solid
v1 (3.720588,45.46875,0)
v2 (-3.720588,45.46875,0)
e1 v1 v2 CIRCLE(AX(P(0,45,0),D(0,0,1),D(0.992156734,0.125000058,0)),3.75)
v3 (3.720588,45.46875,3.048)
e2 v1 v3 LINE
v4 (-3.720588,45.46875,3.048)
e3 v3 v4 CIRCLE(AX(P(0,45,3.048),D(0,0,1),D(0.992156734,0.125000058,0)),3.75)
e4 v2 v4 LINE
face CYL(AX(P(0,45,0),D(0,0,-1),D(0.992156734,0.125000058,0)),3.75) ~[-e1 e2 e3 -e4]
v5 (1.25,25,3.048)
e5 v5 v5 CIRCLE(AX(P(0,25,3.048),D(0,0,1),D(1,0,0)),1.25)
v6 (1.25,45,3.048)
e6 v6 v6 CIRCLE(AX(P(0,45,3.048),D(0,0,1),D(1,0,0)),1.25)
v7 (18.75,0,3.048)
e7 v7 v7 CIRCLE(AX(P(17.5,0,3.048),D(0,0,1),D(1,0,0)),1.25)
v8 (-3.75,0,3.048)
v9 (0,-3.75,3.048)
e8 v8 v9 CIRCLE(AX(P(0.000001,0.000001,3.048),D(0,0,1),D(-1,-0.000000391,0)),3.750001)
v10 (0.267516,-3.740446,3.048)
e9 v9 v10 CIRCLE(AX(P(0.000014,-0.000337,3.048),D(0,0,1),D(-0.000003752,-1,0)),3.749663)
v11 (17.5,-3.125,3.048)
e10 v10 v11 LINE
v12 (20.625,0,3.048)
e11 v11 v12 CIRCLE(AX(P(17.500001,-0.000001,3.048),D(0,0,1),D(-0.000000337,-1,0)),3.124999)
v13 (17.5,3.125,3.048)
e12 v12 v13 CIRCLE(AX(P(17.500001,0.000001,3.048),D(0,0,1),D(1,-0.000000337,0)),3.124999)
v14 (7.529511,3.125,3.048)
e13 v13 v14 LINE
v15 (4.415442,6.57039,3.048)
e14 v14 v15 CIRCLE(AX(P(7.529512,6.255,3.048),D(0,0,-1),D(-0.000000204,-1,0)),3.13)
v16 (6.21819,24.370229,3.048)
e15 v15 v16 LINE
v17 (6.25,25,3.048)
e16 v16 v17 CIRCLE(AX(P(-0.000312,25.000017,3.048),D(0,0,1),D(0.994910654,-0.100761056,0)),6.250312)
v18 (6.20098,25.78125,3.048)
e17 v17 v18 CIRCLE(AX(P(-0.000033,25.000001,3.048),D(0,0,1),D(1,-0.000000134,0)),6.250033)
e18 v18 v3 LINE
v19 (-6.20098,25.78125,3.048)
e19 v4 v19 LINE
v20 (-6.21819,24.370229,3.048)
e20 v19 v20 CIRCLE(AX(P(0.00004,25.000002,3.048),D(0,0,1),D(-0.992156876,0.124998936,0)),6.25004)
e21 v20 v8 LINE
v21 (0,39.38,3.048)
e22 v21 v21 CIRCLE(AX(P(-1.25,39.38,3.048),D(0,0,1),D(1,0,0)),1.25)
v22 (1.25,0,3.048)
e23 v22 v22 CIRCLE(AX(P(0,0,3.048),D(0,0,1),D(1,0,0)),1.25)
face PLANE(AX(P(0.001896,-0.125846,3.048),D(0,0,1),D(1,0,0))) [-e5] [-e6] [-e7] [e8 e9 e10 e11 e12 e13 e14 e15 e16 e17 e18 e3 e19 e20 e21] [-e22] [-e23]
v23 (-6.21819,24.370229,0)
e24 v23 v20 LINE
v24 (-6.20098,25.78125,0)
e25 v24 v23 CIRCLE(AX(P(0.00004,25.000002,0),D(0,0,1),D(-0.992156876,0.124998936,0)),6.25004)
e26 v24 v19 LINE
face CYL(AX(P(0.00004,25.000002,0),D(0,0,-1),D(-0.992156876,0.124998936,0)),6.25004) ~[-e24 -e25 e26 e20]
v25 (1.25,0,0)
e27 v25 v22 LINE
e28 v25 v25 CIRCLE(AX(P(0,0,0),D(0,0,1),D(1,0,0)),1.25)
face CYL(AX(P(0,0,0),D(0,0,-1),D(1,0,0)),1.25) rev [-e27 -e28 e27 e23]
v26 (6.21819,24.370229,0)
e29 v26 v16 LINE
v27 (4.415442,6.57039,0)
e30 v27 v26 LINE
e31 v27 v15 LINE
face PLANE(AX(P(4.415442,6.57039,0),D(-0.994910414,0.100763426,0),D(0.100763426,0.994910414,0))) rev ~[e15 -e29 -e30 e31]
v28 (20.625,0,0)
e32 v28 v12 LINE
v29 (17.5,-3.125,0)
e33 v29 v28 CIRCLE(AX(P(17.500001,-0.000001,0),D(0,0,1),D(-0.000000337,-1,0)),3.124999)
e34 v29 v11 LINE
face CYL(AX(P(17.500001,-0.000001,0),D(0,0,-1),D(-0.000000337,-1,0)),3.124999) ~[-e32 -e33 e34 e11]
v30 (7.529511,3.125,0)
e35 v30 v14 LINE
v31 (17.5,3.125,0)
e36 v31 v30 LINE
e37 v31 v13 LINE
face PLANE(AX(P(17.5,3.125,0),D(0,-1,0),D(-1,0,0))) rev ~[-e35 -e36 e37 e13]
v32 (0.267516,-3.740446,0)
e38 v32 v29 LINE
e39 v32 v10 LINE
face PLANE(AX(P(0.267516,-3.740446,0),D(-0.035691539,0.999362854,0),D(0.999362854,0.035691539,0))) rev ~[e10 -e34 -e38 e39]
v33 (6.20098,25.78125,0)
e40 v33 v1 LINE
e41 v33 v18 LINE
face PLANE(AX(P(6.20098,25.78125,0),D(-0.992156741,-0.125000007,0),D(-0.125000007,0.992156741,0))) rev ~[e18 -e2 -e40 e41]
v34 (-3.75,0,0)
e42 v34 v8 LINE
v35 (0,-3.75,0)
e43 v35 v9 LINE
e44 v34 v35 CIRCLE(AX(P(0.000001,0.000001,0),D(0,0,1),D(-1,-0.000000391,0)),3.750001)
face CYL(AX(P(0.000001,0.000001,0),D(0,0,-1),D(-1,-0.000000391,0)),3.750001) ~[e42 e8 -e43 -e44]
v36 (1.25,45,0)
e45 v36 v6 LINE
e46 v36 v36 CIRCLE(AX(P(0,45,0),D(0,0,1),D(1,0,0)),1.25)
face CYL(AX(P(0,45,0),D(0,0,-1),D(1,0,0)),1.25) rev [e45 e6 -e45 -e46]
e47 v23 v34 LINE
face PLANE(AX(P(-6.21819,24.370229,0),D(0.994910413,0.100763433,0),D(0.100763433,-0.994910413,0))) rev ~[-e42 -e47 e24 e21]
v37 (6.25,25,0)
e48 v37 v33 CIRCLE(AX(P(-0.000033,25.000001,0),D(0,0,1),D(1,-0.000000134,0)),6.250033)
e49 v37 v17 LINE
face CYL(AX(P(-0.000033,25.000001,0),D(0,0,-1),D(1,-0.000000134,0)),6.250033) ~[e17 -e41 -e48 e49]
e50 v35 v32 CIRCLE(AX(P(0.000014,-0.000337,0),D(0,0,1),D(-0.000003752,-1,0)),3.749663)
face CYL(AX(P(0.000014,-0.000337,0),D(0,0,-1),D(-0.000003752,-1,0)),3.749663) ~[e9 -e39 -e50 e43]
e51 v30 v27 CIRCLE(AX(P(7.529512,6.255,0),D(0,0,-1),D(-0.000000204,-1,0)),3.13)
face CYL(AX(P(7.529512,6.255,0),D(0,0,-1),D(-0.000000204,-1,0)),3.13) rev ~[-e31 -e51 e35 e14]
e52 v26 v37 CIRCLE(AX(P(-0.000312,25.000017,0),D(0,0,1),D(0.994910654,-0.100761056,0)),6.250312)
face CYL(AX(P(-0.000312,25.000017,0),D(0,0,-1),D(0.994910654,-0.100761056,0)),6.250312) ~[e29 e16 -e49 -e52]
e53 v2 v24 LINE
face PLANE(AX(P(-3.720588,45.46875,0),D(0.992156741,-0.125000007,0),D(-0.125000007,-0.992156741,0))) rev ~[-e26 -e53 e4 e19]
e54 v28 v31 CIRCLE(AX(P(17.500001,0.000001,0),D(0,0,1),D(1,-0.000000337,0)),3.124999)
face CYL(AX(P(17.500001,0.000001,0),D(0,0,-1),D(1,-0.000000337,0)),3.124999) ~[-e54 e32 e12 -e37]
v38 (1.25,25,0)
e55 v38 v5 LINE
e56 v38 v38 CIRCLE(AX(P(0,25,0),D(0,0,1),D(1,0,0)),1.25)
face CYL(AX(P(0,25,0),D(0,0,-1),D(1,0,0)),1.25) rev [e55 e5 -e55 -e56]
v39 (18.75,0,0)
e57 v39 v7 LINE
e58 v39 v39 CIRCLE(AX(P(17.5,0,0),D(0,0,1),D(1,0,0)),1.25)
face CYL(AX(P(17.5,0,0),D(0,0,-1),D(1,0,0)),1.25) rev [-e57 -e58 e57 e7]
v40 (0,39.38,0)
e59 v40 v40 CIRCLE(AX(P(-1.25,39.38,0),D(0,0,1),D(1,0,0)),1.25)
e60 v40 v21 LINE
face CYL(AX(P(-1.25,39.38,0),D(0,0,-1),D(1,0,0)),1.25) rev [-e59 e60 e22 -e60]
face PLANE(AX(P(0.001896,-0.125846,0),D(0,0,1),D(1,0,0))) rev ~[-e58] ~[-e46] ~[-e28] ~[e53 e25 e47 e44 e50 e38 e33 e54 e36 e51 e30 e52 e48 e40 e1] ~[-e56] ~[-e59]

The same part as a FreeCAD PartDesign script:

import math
import FreeCAD as App
import Part
import Sketcher

V = App.Vector

doc = App.newDocument("Part")
body = doc.addObject("PartDesign::Body", "Body")

# Sketch on XY plane
sketch1 = doc.addObject("Sketcher::SketchObject", "Sketch")
body.addObject(sketch1)
sketch1.AttachmentSupport = (doc.XY_Plane, [""])
sketch1.MapMode = "FlatFace"
sketch1.addGeometry(Part.LineSegment(V(0.267516, -3.740446, 0), V(17.5, -3.125, 0)), False)
sketch1.addGeometry(Part.ArcOfCircle(Part.Circle(V(17.500001, -0.000001, 0), V(0, 0, 1), 3.124999), math.radians(-90.000019), math.radians(0.000019)), False)
sketch1.addGeometry(Part.ArcOfCircle(Part.Circle(V(17.500001, 0.000001, 0), V(0, 0, 1), 3.124999), math.radians(-0.000019), math.radians(90.000019)), False)
sketch1.addGeometry(Part.LineSegment(V(17.5, 3.125, 0), V(7.529511, 3.125, 0)), False)
sketch1.addGeometry(Part.ArcOfCircle(Part.Circle(V(7.529512, 6.255, 0), V(0, 0, 1), 3.13), math.radians(174.216859), math.radians(269.999988)), False)
sketch1.addGeometry(Part.LineSegment(V(4.415442, 6.57039, 0), V(6.21819, 24.370229, 0)), False)
sketch1.addGeometry(Part.ArcOfCircle(Part.Circle(V(-0.000312, 25.000017, 0), V(0, 0, 1), 6.250312), math.radians(-5.782997), math.radians(-0.000156)), False)
sketch1.addGeometry(Part.ArcOfCircle(Part.Circle(V(-0.000033, 25.000001, 0), V(0, 0, 1), 6.250033), math.radians(-0.000008), math.radians(7.18071)), False)
sketch1.addGeometry(Part.LineSegment(V(6.20098, 25.78125, 0), V(3.720588, 45.46875, 0)), False)
sketch1.addGeometry(Part.ArcOfCircle(Part.Circle(V(0, 45, 0), V(0, 0, 1), 3.75), math.radians(7.180759), math.radians(172.819241)), False)
sketch1.addGeometry(Part.LineSegment(V(-3.720588, 45.46875, 0), V(-6.20098, 25.78125, 0)), False)
sketch1.addGeometry(Part.ArcOfCircle(Part.Circle(V(0.00004, 25.000002, 0), V(0, 0, 1), 6.25004), math.radians(172.819306), math.radians(185.783109)), False)
sketch1.addGeometry(Part.LineSegment(V(-6.21819, 24.370229, 0), V(-3.75, 0, 0)), False)
sketch1.addGeometry(Part.ArcOfCircle(Part.Circle(V(0.000001, 0.000001, 0), V(0, 0, 1), 3.750001), math.radians(-179.999978), math.radians(-90.000022)), False)
sketch1.addGeometry(Part.ArcOfCircle(Part.Circle(V(0.000014, -0.000337, 0), V(0, 0, 1), 3.749663), math.radians(-90.000215), math.radians(-85.909029)), False)
sketch1.addGeometry(Part.Circle(V(0, 0, 0), V(0, 0, 1), 1.25), False)
sketch1.addGeometry(Part.Circle(V(17.5, 0, 0), V(0, 0, 1), 1.25), False)
sketch1.addGeometry(Part.Circle(V(0, 25, 0), V(0, 0, 1), 1.25), False)
sketch1.addGeometry(Part.Circle(V(-1.25, 39.38, 0), V(0, 0, 1), 1.25), False)
sketch1.addGeometry(Part.Circle(V(0, 45, 0), V(0, 0, 1), 1.25), False)
sketch1.addConstraint(Sketcher.Constraint("Coincident", 0, 2, 1, 1))
sketch1.addConstraint(Sketcher.Constraint("Tangent", 1, 2, 2, 1))
sketch1.addConstraint(Sketcher.Constraint("Tangent", 2, 2, 3, 1))
sketch1.addConstraint(Sketcher.Constraint("Tangent", 3, 2, 4, 2))
sketch1.addConstraint(Sketcher.Constraint("Tangent", 4, 1, 5, 1))
sketch1.addConstraint(Sketcher.Constraint("Coincident", 5, 2, 6, 1))
sketch1.addConstraint(Sketcher.Constraint("Coincident", 6, 2, 7, 1))
sketch1.addConstraint(Sketcher.Constraint("Tangent", 7, 2, 8, 1))
sketch1.addConstraint(Sketcher.Constraint("Tangent", 8, 2, 9, 1))
sketch1.addConstraint(Sketcher.Constraint("Tangent", 9, 2, 10, 1))
sketch1.addConstraint(Sketcher.Constraint("Tangent", 10, 2, 11, 1))
sketch1.addConstraint(Sketcher.Constraint("Tangent", 11, 2, 12, 1))
sketch1.addConstraint(Sketcher.Constraint("Coincident", 12, 2, 13, 1))
sketch1.addConstraint(Sketcher.Constraint("Coincident", 13, 2, 14, 1))
sketch1.addConstraint(Sketcher.Constraint("Coincident", 14, 2, 0, 1))
sketch1.addConstraint(Sketcher.Constraint("Horizontal", 3))
sketch1.addConstraint(Sketcher.Constraint("Coincident", 13, 3, -1, 1))
sketch1.addConstraint(Sketcher.Constraint("Coincident", 15, 3, -1, 1))
sketch1.addConstraint(Sketcher.Constraint("Coincident", 16, 3, 1, 3))
sketch1.addConstraint(Sketcher.Constraint("Coincident", 19, 3, 9, 3))
sketch1.addConstraint(Sketcher.Constraint("Equal", 1, 2))
sketch1.addConstraint(Sketcher.Constraint("Equal", 9, 13))
sketch1.addConstraint(Sketcher.Constraint("Equal", 15, 16))
sketch1.addConstraint(Sketcher.Constraint("Equal", 16, 17))
sketch1.addConstraint(Sketcher.Constraint("Equal", 17, 18))
sketch1.addConstraint(Sketcher.Constraint("Equal", 18, 19))
sketch1.addConstraint(Sketcher.Constraint("Symmetric", 7, 3, 11, 3, -2))
sketch1.addConstraint(Sketcher.Constraint("Symmetric", 8, 2, 9, 2, -2))
sketch1.addConstraint(Sketcher.Constraint("Symmetric", 5, 2, 11, 2, -2))
sketch1.addConstraint(Sketcher.Constraint("Symmetric", 0, 2, 2, 2, -1))
sketch1.addConstraint(Sketcher.Constraint("PointOnObject", 17, 3, -2))
sketch1.addConstraint(Sketcher.Constraint("PointOnObject", 1, 2, -1))
sketch1.addConstraint(Sketcher.Constraint("PointOnObject", 12, 2, -1))
sketch1.addConstraint(Sketcher.Constraint("PointOnObject", 13, 2, -2))
sketch1.addConstraint(Sketcher.Constraint("Horizontal", 11, 3, 17, 3))
sketch1.addConstraint(Sketcher.Constraint("Horizontal", 17, 3, 6, 2))
sketch1.addConstraint(Sketcher.Constraint("Diameter", 15, 2.5))
sketch1.addConstraint(Sketcher.Constraint("Radius", 4, 3.13))
sketch1.addConstraint(Sketcher.Constraint("Radius", 9, 3.75))
sketch1.addConstraint(Sketcher.Constraint("DistanceY", -1, 1, 7, 3, 25.000001))
sketch1.addConstraint(Sketcher.Constraint("DistanceY", -1, 1, 9, 3, 45.0))
sketch1.addConstraint(Sketcher.Constraint("Radius", 1, 3.124999))
sketch1.addConstraint(Sketcher.Constraint("DistanceX", -1, 1, 1, 3, 17.500001))
sketch1.addConstraint(Sketcher.Constraint("DistanceX", 18, 3, -1, 1, 1.25))
sketch1.addConstraint(Sketcher.Constraint("DistanceY", -1, 1, 18, 3, 39.38))
sketch1.addConstraint(Sketcher.Constraint("DistanceX", -1, 1, 6, 2, 6.25))
sketch1.addConstraint(Sketcher.Constraint("Radius", 6, 6.250312))
sketch1.addConstraint(Sketcher.Constraint("Radius", 11, 6.25004))
sketch1.addConstraint(Sketcher.Constraint("Radius", 14, 3.749663))
sketch1.addConstraint(Sketcher.Constraint("DistanceX", 3, 2, 3, 1, 9.970489))
sketch1.addConstraint(Sketcher.Constraint("DistanceX", 14, 3, 14, 2, 0.267502))
sketch1.addConstraint(Sketcher.Constraint("Distance", 0, 17.243471))
pad1 = doc.addObject("PartDesign::Pad", "Pad")
body.addObject(pad1)
pad1.Profile = sketch1
pad1.Length = 3.048

doc.recompute()
